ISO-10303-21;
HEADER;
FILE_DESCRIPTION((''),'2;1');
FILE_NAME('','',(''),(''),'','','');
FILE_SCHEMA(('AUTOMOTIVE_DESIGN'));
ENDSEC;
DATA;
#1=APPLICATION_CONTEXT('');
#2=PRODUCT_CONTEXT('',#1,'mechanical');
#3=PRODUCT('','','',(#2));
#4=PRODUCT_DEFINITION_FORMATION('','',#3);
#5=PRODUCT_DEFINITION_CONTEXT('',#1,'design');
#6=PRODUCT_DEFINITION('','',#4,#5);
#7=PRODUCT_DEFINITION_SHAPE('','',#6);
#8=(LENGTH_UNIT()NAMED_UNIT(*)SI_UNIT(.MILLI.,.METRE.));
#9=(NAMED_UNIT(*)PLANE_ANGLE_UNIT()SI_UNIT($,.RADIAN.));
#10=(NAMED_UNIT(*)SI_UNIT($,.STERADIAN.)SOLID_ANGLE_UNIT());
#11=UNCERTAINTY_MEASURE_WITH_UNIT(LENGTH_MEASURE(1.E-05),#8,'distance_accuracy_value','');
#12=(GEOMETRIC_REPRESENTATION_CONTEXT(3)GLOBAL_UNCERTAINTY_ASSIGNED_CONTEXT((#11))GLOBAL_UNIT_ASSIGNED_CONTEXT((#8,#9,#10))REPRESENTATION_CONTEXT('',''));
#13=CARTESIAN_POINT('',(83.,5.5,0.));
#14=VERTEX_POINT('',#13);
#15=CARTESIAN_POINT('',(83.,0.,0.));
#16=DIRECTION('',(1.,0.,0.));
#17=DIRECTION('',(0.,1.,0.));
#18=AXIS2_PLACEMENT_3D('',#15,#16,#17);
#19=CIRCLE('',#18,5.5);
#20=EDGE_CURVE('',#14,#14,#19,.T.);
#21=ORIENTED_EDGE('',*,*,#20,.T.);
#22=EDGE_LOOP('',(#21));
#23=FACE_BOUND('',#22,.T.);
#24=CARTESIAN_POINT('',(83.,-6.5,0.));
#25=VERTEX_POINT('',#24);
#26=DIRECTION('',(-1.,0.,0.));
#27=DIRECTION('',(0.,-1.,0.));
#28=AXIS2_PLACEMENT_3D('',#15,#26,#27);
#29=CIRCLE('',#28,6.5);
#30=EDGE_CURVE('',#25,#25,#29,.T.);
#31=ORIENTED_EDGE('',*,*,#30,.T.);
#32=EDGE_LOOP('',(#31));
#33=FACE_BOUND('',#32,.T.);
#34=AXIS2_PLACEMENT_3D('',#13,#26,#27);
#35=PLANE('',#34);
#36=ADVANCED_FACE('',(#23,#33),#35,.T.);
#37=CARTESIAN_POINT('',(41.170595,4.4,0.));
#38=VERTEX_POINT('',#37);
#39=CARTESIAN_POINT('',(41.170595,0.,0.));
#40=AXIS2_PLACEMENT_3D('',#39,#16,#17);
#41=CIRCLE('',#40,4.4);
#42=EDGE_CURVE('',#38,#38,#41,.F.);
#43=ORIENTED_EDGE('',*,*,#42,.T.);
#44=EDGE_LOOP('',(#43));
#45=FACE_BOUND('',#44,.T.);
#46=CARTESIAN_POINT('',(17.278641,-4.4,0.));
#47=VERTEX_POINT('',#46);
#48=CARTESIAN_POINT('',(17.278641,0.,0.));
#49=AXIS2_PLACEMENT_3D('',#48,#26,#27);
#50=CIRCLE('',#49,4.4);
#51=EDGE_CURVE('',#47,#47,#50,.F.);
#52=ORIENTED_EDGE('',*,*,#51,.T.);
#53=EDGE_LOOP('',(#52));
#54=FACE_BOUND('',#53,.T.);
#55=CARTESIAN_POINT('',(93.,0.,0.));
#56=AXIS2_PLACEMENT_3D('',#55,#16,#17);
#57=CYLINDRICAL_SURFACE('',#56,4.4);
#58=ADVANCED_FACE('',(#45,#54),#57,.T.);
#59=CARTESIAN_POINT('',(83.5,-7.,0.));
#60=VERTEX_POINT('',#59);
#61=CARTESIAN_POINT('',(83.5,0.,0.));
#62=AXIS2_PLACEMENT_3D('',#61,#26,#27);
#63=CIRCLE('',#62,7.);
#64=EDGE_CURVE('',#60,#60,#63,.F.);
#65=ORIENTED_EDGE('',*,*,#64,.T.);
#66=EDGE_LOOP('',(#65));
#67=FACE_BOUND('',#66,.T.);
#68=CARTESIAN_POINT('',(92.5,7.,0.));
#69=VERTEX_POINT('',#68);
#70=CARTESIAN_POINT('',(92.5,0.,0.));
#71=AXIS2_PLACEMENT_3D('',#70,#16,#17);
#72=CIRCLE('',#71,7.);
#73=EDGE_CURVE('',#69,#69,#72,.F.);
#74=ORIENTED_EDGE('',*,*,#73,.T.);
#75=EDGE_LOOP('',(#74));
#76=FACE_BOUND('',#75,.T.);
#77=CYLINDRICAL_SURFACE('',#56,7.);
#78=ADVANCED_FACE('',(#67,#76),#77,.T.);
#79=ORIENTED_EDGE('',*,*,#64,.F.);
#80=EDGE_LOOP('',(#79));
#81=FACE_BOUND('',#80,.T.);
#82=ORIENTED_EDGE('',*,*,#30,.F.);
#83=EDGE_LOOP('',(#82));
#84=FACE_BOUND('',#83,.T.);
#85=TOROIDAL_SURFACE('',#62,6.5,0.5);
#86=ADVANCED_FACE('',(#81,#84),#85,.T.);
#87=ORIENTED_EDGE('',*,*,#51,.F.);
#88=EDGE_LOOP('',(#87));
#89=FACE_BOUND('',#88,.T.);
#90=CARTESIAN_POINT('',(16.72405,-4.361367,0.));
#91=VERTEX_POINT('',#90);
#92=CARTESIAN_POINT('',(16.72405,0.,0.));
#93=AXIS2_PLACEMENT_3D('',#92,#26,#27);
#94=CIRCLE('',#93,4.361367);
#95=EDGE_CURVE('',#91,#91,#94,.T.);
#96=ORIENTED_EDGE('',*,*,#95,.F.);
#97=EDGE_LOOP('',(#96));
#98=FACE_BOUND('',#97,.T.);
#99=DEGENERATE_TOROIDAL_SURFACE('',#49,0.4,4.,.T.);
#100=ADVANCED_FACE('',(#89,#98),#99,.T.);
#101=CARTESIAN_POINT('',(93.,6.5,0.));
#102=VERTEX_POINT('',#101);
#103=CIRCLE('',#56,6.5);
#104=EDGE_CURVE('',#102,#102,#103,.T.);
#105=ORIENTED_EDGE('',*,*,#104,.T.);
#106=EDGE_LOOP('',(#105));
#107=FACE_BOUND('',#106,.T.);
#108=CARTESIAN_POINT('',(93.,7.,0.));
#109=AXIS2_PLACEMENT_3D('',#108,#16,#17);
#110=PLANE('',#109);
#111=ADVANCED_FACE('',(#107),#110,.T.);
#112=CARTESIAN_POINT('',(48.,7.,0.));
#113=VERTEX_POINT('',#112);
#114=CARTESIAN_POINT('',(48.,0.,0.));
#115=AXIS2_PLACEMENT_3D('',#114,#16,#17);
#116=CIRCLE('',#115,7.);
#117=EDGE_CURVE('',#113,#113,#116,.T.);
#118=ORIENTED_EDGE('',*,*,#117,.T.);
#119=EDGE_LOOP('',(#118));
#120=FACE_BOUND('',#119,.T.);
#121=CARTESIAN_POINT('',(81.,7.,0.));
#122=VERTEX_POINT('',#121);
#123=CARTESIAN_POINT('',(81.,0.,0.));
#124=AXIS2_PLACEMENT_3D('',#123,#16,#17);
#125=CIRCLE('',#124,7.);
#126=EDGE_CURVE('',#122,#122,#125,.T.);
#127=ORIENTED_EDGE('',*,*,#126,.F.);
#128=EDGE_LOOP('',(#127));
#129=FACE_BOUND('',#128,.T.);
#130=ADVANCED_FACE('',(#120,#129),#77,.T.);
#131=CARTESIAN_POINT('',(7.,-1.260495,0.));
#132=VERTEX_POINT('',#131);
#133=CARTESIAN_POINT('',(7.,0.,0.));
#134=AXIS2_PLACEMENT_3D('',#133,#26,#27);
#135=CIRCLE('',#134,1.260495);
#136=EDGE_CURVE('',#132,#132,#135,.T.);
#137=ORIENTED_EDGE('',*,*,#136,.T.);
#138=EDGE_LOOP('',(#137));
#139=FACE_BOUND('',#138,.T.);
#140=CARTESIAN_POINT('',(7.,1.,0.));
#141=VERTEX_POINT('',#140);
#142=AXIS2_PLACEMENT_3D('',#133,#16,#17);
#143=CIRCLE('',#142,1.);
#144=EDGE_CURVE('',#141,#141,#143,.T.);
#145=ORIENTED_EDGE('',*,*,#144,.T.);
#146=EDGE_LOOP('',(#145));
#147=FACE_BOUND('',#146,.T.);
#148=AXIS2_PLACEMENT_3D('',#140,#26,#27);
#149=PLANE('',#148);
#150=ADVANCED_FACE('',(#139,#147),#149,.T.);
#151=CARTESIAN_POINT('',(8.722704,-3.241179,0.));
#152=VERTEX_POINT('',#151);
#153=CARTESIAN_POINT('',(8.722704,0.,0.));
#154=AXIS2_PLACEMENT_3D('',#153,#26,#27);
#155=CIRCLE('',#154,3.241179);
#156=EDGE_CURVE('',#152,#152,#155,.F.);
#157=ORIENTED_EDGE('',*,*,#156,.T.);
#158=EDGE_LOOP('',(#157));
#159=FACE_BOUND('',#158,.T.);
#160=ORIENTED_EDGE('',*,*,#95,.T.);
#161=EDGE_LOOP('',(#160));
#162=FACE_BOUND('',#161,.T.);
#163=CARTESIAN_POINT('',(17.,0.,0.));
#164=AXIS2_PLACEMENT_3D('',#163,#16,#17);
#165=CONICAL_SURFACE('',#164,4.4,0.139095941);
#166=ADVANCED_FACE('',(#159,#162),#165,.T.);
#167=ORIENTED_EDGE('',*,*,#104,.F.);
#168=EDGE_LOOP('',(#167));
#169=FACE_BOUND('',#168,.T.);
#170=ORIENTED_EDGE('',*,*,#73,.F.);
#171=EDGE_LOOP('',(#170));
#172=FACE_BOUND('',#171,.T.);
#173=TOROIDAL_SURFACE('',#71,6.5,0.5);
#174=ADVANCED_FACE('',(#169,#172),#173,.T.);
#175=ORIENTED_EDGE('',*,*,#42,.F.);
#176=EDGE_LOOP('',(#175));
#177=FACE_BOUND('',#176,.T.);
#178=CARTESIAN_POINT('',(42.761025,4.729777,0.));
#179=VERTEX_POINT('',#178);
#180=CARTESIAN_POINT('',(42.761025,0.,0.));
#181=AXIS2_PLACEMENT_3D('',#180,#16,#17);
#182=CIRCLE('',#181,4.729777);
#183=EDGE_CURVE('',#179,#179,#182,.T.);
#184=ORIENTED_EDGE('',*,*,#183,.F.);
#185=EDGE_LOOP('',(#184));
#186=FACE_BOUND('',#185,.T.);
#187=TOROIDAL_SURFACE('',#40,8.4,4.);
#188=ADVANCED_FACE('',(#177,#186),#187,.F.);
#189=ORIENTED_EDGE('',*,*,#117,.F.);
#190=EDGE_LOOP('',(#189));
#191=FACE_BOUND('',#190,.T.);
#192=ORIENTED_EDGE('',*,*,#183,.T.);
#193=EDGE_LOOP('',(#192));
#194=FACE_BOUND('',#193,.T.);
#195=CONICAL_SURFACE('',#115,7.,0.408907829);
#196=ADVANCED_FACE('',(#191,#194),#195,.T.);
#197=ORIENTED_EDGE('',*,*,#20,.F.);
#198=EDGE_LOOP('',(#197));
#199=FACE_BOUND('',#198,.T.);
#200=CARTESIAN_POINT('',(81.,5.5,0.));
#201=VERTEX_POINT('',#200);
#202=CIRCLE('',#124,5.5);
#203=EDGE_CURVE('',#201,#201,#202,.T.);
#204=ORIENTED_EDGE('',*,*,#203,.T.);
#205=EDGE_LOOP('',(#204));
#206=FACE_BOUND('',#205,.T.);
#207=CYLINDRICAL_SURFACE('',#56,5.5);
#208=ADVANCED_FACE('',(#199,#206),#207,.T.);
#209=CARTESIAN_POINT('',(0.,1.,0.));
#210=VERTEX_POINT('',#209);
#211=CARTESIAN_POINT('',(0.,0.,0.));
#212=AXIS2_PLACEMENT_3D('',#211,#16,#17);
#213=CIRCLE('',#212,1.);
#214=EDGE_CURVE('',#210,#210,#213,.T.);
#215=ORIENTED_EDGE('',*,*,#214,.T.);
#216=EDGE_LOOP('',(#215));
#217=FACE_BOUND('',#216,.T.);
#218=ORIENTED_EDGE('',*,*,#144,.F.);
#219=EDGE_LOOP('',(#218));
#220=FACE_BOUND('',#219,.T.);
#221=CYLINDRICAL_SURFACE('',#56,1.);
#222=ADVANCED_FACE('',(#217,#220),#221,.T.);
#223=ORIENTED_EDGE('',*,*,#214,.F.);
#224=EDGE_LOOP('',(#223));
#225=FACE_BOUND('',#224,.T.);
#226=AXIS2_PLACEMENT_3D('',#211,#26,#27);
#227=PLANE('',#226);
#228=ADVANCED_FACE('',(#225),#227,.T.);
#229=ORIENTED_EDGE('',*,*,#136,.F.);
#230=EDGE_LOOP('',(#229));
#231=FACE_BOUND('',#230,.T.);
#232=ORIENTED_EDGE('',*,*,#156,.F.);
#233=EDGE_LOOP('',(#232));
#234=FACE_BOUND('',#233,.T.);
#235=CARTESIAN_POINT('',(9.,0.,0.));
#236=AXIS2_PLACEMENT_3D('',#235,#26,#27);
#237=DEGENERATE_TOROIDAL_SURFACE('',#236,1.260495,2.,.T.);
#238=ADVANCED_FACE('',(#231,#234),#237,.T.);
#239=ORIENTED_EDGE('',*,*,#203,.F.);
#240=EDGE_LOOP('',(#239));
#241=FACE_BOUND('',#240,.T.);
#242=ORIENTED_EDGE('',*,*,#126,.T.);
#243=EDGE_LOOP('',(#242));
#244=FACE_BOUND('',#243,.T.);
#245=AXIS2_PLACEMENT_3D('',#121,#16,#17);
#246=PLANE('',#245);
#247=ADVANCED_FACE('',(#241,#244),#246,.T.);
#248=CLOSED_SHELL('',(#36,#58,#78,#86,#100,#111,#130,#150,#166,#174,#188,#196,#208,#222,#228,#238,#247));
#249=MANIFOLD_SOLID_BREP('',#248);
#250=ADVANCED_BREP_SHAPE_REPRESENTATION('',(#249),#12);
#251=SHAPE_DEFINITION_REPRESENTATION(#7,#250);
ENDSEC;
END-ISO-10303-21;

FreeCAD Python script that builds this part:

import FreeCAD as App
import Part
import Sketcher

V = App.Vector


def edges_at(feature, points):
    """Names of the edges that pass closest to the given points."""
    edges = feature.Shape.Edges
    near = lambda p: min(range(len(edges)), key=lambda i: edges[i].distToShape(Part.Vertex(*p))[0])
    return sorted({f"Edge{near(p) + 1}" for p in points})


def add_polygon(sketch, points):
    """Adds a closed chain of lines whose ends are joined by coincident constraints."""
    first, n = sketch.GeometryCount, len(points)
    for a, b in zip(points, points[1:] + points[:1]):
        sketch.addGeometry(Part.LineSegment(App.Vector(*a, 0), App.Vector(*b, 0)), False)
    for i in range(n):
        sketch.addConstraint(Sketcher.Constraint("Coincident", first + i, 2, first + (i + 1) % n, 1))

doc = App.newDocument("Part")
body = doc.addObject("PartDesign::Body", "Body")

# Sketch on XY plane
sketch1 = body.newObject("Sketcher::SketchObject", "Sketch")
sketch1.AttachmentSupport = (doc.getObject("XY_Plane"), [""])
sketch1.MapMode = "FlatFace"
add_polygon(sketch1, [(0, 1), (0, 0), (93, 0), (93, 7), (83, 7), (83, 5.5), (81, 5.5), (81, 7), (48, 7), (42, 4.4), (17, 4.4), (7, 3), (7, 1)])  # lines 0-12
sketch1.addConstraint([
    Sketcher.Constraint("Vertical", 0),
    Sketcher.Constraint("Horizontal", 1),
    Sketcher.Constraint("Vertical", 2),
    Sketcher.Constraint("Horizontal", 3),
    Sketcher.Constraint("Vertical", 4),
    Sketcher.Constraint("Horizontal", 5),
    Sketcher.Constraint("Vertical", 6),
    Sketcher.Constraint("Horizontal", 7),
    Sketcher.Constraint("Horizontal", 9),
    Sketcher.Constraint("Vertical", 11),
    Sketcher.Constraint("Horizontal", 12),
    Sketcher.Constraint("Coincident", 0, 2, -1, 1),
    Sketcher.Constraint("Horizontal", 3, 2, 6, 2),
    Sketcher.Constraint("Equal", 12, 2),
    Sketcher.Constraint("Equal", 5, 11),
    Sketcher.Constraint("DistanceX", 1, 1, 1, 2, 93.0),
    Sketcher.Constraint("DistanceX", 3, 2, 3, 1, 10.0),
    Sketcher.Constraint("DistanceX", 5, 2, 5, 1, 2.0),
    Sketcher.Constraint("DistanceX", 7, 2, 7, 1, 33.0),
    Sketcher.Constraint("DistanceX", 9, 2, 9, 1, 25.0),
    Sketcher.Constraint("DistanceX", 12, 2, 12, 1, 7.0),
    Sketcher.Constraint("DistanceY", 0, 2, 0, 1, 1.0),
    Sketcher.Constraint("DistanceY", 4, 2, 4, 1, 1.5),
    Sketcher.Constraint("DistanceX", -1, 1, 8, 2, 42.0),
    Sketcher.Constraint("DistanceY", -1, 1, 8, 2, 4.4),
])
revolution = body.newObject("PartDesign::Revolution", "Revolution")
revolution.Profile = sketch1
revolution.ReferenceAxis = (sketch1, ["H_Axis"])
revolution.Angle = 360
doc.recompute()

fillet = body.newObject("PartDesign::Fillet", "Fillet")
fillet.Base = (revolution, edges_at(revolution, [(7, -3, 0)]))
fillet.Radius = 2
doc.recompute()

fillet2 = body.newObject("PartDesign::Fillet", "Fillet001")
fillet2.Base = (fillet, edges_at(fillet, [(42, -4.4, 0), (17, -4.4, 0)]))
fillet2.Radius = 4
doc.recompute()

fillet3 = body.newObject("PartDesign::Fillet", "Fillet002")
fillet3.Base = (fillet2, edges_at(fillet2, [(93, -7, 0), (83, -7, 0)]))
fillet3.Radius = 0.5

doc.recompute()
